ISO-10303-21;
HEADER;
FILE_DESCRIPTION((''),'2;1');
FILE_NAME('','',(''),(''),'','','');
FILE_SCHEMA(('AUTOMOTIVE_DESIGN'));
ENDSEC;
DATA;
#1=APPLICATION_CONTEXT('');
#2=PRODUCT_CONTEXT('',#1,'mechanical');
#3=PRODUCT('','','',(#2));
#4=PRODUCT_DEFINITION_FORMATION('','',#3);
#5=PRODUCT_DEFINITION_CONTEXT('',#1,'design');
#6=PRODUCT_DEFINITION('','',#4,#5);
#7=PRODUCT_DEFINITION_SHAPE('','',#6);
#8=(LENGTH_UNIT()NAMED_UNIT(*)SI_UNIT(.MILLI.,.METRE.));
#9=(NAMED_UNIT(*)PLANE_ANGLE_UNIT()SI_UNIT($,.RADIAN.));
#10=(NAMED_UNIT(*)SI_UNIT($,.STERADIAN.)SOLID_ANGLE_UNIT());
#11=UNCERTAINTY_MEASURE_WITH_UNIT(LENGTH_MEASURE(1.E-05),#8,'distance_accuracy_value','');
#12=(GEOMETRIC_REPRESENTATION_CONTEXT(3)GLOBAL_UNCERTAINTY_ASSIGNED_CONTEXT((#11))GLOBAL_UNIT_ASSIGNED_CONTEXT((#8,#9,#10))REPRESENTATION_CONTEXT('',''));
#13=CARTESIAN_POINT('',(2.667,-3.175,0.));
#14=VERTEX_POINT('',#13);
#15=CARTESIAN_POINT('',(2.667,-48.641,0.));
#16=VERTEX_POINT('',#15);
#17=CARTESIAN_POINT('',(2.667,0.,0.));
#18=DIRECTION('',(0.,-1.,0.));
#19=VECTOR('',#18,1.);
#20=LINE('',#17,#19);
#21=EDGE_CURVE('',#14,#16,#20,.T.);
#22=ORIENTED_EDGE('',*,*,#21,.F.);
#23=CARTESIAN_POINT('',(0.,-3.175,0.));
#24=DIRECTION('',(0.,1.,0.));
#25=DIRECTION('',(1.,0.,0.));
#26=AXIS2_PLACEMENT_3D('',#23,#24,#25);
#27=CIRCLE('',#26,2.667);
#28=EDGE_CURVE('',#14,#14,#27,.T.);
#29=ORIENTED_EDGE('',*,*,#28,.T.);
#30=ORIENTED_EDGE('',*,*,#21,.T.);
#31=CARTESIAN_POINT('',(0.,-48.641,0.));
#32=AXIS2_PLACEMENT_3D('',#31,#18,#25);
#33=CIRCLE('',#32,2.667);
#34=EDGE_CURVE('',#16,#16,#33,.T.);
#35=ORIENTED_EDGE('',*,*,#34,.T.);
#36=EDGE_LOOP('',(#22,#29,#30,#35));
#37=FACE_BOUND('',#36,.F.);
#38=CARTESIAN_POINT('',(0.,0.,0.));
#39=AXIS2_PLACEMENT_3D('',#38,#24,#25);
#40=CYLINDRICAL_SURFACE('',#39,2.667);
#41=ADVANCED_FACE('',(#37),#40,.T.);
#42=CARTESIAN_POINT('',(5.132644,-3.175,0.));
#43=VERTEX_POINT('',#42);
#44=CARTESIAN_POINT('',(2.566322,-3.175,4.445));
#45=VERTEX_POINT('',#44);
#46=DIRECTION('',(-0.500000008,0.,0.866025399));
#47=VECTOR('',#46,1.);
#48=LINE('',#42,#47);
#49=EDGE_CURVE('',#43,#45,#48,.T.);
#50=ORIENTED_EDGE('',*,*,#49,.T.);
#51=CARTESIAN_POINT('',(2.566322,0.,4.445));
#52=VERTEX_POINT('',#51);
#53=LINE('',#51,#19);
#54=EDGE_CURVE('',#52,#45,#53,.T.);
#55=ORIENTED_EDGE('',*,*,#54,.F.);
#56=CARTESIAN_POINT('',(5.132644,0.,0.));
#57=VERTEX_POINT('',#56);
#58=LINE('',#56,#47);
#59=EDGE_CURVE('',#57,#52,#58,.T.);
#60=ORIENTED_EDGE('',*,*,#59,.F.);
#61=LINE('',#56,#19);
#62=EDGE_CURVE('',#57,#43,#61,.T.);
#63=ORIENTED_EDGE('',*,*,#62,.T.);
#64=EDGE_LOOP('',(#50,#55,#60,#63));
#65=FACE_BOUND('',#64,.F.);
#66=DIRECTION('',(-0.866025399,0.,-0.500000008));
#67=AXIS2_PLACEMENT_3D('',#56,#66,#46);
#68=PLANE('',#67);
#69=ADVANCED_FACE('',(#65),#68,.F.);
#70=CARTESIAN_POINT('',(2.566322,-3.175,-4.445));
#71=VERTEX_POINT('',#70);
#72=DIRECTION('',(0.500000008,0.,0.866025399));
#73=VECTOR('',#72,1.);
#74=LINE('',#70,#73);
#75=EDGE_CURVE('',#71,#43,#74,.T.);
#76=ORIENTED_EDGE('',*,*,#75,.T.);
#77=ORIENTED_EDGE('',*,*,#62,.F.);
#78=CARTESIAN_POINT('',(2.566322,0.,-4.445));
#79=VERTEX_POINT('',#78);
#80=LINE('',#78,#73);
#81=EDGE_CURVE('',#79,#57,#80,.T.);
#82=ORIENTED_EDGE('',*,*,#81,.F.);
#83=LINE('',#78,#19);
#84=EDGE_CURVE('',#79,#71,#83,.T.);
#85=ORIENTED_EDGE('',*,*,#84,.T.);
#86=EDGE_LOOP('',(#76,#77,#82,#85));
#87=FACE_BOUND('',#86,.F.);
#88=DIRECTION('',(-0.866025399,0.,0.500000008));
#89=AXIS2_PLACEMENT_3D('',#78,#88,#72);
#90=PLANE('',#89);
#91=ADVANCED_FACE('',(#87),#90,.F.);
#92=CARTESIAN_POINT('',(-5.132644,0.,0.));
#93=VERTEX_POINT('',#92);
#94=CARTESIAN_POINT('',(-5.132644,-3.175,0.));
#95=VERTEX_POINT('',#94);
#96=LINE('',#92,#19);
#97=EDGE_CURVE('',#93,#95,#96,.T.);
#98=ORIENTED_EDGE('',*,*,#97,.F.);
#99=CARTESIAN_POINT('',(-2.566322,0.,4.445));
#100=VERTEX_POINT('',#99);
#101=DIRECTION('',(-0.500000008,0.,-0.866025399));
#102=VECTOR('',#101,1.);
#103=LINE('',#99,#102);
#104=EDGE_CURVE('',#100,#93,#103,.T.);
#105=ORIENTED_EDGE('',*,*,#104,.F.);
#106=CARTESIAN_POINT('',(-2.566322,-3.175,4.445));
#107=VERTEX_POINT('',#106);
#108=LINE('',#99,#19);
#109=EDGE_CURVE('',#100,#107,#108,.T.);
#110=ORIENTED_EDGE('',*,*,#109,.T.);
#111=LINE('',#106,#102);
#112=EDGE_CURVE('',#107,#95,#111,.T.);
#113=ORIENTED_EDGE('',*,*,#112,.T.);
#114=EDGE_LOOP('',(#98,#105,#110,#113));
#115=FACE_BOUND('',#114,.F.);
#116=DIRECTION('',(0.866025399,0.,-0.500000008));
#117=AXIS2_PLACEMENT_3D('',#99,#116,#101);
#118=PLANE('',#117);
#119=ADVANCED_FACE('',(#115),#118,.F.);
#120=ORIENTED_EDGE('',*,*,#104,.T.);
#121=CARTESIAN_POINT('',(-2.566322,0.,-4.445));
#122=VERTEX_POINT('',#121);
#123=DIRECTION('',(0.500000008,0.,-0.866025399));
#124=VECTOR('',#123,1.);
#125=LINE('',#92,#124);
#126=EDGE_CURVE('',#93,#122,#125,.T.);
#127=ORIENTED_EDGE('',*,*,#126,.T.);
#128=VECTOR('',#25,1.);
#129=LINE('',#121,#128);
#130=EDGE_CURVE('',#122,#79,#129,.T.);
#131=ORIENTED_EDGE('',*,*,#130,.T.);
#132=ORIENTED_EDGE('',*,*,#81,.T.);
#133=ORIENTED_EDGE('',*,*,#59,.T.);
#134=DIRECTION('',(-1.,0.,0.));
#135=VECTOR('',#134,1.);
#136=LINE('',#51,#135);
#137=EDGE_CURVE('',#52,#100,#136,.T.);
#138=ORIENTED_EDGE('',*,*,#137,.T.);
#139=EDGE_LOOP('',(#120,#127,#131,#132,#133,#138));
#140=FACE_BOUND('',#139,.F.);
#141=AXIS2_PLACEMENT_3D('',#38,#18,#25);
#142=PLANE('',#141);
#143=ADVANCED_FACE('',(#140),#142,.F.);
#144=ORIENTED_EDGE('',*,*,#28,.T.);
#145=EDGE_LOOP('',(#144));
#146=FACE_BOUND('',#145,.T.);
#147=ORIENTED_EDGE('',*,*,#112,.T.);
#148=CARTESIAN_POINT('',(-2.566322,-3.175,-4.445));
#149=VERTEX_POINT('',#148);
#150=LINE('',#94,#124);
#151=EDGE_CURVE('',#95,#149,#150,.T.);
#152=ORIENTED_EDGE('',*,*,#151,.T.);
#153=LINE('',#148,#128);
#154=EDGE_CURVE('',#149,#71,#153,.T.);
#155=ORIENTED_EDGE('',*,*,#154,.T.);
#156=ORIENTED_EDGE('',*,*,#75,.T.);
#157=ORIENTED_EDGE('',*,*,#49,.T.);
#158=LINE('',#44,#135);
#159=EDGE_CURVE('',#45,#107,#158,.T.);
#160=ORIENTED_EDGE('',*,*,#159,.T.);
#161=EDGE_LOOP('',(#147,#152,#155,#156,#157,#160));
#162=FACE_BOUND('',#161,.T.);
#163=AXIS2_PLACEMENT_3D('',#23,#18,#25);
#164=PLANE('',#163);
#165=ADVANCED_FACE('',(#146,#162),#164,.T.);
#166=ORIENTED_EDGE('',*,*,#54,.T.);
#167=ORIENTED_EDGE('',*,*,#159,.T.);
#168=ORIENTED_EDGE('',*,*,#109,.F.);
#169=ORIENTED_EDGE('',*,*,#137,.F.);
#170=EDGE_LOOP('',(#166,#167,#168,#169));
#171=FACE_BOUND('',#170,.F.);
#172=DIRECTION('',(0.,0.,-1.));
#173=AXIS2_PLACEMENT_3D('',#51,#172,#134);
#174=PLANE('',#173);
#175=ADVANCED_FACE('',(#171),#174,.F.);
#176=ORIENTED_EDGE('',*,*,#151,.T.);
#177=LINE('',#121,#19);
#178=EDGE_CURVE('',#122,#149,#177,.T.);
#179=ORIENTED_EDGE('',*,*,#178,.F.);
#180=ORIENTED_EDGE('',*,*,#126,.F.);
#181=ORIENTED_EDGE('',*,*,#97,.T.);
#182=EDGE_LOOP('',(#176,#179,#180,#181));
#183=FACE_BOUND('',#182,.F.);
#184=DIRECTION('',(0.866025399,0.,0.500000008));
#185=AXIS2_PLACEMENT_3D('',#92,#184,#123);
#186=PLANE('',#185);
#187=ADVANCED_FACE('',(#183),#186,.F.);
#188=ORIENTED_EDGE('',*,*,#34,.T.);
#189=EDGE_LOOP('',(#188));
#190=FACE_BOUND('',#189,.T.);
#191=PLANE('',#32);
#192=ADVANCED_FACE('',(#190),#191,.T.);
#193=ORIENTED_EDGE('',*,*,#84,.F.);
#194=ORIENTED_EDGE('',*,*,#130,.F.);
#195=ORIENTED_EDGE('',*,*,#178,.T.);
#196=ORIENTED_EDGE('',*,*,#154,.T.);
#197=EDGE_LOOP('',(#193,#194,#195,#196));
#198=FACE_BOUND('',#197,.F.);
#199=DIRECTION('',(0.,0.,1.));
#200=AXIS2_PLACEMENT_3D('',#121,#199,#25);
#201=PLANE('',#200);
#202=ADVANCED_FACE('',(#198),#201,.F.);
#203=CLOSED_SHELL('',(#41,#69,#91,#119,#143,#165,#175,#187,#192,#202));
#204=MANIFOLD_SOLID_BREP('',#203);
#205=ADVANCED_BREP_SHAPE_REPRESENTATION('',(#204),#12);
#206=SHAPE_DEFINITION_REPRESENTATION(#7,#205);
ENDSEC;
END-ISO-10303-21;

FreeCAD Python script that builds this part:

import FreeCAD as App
import Part
import Sketcher

V = App.Vector
Q = App.Units.Quantity


def add_polygon(sketch, points):
    """Adds a closed chain of lines whose ends are joined by coincident constraints."""
    first, n = sketch.GeometryCount, len(points)
    for a, b in zip(points, points[1:] + points[:1]):
        sketch.addGeometry(Part.LineSegment(App.Vector(*a, 0), App.Vector(*b, 0)), False)
    for i in range(n):
        sketch.addConstraint(Sketcher.Constraint("Coincident", first + i, 2, first + (i + 1) % n, 1))

doc = App.newDocument("Part")
body = doc.addObject("PartDesign::Body", "Body")

# Sketch on XZ plane
sketch1 = doc.addObject("Sketcher::SketchObject", "Sketch")
body.addObject(sketch1)
sketch1.AttachmentSupport = (doc.XZ_Plane, [""])
sketch1.MapMode = "FlatFace"
add_polygon(sketch1, [(3, 4), (-3, 4), (-5, 0), (-3, -4), (3, -4), (5, 0)])  # lines 0-5
sketch1.addConstraint(Sketcher.Constraint("Horizontal", 0))
sketch1.addConstraint(Sketcher.Constraint("Horizontal", 3))
sketch1.addConstraint(Sketcher.Constraint("Symmetric", 0, 2, 3, 2, -1, 1))
sketch1.addConstraint(Sketcher.Constraint("Symmetric", 1, 2, 4, 2, -1, 1))
sketch1.addConstraint(Sketcher.Constraint("PointOnObject", 1, 2, -1))
sketch1.addConstraint(Sketcher.Constraint("Parallel", 2, 5))
sketch1.addConstraint(Sketcher.Constraint("Vertical", 0, 2, 2, 2))
sketch1.addConstraint(Sketcher.Constraint("Angle", 1, Q("-120.000001 deg")))
sketch1.addConstraint(Sketcher.Constraint("DistanceY", 2, 2, 0, 2, Q("0.35 in")))
sketch1.addConstraint(Sketcher.Constraint("DistanceX", 0, 2, 0, 1, 5.132644))
pad1 = doc.addObject("PartDesign::Pad", "Pad")
body.addObject(pad1)
pad1.Profile = sketch1
pad1.Length = Q("0.125 in")

# Sketch on XZ plane
sketch2 = doc.addObject("Sketcher::SketchObject", "Sketch001")
body.addObject(sketch2)
sketch2.AttachmentSupport = (doc.XZ_Plane, [""])
sketch2.MapMode = "FlatFace"
sketch2.addGeometry(Part.Circle(V(0, 0, 0), V(0, 0, 1), 2.7), False)
sketch2.addConstraint(Sketcher.Constraint("Coincident", 0, 3, -1, 1))
sketch2.addConstraint(Sketcher.Constraint("Diameter", 0, Q("0.21 in")))
pad2 = doc.addObject("PartDesign::Pad", "Pad001")
body.addObject(pad2)
pad2.Profile = sketch2
pad2.Length = Q("1.915 in")

doc.recompute()
